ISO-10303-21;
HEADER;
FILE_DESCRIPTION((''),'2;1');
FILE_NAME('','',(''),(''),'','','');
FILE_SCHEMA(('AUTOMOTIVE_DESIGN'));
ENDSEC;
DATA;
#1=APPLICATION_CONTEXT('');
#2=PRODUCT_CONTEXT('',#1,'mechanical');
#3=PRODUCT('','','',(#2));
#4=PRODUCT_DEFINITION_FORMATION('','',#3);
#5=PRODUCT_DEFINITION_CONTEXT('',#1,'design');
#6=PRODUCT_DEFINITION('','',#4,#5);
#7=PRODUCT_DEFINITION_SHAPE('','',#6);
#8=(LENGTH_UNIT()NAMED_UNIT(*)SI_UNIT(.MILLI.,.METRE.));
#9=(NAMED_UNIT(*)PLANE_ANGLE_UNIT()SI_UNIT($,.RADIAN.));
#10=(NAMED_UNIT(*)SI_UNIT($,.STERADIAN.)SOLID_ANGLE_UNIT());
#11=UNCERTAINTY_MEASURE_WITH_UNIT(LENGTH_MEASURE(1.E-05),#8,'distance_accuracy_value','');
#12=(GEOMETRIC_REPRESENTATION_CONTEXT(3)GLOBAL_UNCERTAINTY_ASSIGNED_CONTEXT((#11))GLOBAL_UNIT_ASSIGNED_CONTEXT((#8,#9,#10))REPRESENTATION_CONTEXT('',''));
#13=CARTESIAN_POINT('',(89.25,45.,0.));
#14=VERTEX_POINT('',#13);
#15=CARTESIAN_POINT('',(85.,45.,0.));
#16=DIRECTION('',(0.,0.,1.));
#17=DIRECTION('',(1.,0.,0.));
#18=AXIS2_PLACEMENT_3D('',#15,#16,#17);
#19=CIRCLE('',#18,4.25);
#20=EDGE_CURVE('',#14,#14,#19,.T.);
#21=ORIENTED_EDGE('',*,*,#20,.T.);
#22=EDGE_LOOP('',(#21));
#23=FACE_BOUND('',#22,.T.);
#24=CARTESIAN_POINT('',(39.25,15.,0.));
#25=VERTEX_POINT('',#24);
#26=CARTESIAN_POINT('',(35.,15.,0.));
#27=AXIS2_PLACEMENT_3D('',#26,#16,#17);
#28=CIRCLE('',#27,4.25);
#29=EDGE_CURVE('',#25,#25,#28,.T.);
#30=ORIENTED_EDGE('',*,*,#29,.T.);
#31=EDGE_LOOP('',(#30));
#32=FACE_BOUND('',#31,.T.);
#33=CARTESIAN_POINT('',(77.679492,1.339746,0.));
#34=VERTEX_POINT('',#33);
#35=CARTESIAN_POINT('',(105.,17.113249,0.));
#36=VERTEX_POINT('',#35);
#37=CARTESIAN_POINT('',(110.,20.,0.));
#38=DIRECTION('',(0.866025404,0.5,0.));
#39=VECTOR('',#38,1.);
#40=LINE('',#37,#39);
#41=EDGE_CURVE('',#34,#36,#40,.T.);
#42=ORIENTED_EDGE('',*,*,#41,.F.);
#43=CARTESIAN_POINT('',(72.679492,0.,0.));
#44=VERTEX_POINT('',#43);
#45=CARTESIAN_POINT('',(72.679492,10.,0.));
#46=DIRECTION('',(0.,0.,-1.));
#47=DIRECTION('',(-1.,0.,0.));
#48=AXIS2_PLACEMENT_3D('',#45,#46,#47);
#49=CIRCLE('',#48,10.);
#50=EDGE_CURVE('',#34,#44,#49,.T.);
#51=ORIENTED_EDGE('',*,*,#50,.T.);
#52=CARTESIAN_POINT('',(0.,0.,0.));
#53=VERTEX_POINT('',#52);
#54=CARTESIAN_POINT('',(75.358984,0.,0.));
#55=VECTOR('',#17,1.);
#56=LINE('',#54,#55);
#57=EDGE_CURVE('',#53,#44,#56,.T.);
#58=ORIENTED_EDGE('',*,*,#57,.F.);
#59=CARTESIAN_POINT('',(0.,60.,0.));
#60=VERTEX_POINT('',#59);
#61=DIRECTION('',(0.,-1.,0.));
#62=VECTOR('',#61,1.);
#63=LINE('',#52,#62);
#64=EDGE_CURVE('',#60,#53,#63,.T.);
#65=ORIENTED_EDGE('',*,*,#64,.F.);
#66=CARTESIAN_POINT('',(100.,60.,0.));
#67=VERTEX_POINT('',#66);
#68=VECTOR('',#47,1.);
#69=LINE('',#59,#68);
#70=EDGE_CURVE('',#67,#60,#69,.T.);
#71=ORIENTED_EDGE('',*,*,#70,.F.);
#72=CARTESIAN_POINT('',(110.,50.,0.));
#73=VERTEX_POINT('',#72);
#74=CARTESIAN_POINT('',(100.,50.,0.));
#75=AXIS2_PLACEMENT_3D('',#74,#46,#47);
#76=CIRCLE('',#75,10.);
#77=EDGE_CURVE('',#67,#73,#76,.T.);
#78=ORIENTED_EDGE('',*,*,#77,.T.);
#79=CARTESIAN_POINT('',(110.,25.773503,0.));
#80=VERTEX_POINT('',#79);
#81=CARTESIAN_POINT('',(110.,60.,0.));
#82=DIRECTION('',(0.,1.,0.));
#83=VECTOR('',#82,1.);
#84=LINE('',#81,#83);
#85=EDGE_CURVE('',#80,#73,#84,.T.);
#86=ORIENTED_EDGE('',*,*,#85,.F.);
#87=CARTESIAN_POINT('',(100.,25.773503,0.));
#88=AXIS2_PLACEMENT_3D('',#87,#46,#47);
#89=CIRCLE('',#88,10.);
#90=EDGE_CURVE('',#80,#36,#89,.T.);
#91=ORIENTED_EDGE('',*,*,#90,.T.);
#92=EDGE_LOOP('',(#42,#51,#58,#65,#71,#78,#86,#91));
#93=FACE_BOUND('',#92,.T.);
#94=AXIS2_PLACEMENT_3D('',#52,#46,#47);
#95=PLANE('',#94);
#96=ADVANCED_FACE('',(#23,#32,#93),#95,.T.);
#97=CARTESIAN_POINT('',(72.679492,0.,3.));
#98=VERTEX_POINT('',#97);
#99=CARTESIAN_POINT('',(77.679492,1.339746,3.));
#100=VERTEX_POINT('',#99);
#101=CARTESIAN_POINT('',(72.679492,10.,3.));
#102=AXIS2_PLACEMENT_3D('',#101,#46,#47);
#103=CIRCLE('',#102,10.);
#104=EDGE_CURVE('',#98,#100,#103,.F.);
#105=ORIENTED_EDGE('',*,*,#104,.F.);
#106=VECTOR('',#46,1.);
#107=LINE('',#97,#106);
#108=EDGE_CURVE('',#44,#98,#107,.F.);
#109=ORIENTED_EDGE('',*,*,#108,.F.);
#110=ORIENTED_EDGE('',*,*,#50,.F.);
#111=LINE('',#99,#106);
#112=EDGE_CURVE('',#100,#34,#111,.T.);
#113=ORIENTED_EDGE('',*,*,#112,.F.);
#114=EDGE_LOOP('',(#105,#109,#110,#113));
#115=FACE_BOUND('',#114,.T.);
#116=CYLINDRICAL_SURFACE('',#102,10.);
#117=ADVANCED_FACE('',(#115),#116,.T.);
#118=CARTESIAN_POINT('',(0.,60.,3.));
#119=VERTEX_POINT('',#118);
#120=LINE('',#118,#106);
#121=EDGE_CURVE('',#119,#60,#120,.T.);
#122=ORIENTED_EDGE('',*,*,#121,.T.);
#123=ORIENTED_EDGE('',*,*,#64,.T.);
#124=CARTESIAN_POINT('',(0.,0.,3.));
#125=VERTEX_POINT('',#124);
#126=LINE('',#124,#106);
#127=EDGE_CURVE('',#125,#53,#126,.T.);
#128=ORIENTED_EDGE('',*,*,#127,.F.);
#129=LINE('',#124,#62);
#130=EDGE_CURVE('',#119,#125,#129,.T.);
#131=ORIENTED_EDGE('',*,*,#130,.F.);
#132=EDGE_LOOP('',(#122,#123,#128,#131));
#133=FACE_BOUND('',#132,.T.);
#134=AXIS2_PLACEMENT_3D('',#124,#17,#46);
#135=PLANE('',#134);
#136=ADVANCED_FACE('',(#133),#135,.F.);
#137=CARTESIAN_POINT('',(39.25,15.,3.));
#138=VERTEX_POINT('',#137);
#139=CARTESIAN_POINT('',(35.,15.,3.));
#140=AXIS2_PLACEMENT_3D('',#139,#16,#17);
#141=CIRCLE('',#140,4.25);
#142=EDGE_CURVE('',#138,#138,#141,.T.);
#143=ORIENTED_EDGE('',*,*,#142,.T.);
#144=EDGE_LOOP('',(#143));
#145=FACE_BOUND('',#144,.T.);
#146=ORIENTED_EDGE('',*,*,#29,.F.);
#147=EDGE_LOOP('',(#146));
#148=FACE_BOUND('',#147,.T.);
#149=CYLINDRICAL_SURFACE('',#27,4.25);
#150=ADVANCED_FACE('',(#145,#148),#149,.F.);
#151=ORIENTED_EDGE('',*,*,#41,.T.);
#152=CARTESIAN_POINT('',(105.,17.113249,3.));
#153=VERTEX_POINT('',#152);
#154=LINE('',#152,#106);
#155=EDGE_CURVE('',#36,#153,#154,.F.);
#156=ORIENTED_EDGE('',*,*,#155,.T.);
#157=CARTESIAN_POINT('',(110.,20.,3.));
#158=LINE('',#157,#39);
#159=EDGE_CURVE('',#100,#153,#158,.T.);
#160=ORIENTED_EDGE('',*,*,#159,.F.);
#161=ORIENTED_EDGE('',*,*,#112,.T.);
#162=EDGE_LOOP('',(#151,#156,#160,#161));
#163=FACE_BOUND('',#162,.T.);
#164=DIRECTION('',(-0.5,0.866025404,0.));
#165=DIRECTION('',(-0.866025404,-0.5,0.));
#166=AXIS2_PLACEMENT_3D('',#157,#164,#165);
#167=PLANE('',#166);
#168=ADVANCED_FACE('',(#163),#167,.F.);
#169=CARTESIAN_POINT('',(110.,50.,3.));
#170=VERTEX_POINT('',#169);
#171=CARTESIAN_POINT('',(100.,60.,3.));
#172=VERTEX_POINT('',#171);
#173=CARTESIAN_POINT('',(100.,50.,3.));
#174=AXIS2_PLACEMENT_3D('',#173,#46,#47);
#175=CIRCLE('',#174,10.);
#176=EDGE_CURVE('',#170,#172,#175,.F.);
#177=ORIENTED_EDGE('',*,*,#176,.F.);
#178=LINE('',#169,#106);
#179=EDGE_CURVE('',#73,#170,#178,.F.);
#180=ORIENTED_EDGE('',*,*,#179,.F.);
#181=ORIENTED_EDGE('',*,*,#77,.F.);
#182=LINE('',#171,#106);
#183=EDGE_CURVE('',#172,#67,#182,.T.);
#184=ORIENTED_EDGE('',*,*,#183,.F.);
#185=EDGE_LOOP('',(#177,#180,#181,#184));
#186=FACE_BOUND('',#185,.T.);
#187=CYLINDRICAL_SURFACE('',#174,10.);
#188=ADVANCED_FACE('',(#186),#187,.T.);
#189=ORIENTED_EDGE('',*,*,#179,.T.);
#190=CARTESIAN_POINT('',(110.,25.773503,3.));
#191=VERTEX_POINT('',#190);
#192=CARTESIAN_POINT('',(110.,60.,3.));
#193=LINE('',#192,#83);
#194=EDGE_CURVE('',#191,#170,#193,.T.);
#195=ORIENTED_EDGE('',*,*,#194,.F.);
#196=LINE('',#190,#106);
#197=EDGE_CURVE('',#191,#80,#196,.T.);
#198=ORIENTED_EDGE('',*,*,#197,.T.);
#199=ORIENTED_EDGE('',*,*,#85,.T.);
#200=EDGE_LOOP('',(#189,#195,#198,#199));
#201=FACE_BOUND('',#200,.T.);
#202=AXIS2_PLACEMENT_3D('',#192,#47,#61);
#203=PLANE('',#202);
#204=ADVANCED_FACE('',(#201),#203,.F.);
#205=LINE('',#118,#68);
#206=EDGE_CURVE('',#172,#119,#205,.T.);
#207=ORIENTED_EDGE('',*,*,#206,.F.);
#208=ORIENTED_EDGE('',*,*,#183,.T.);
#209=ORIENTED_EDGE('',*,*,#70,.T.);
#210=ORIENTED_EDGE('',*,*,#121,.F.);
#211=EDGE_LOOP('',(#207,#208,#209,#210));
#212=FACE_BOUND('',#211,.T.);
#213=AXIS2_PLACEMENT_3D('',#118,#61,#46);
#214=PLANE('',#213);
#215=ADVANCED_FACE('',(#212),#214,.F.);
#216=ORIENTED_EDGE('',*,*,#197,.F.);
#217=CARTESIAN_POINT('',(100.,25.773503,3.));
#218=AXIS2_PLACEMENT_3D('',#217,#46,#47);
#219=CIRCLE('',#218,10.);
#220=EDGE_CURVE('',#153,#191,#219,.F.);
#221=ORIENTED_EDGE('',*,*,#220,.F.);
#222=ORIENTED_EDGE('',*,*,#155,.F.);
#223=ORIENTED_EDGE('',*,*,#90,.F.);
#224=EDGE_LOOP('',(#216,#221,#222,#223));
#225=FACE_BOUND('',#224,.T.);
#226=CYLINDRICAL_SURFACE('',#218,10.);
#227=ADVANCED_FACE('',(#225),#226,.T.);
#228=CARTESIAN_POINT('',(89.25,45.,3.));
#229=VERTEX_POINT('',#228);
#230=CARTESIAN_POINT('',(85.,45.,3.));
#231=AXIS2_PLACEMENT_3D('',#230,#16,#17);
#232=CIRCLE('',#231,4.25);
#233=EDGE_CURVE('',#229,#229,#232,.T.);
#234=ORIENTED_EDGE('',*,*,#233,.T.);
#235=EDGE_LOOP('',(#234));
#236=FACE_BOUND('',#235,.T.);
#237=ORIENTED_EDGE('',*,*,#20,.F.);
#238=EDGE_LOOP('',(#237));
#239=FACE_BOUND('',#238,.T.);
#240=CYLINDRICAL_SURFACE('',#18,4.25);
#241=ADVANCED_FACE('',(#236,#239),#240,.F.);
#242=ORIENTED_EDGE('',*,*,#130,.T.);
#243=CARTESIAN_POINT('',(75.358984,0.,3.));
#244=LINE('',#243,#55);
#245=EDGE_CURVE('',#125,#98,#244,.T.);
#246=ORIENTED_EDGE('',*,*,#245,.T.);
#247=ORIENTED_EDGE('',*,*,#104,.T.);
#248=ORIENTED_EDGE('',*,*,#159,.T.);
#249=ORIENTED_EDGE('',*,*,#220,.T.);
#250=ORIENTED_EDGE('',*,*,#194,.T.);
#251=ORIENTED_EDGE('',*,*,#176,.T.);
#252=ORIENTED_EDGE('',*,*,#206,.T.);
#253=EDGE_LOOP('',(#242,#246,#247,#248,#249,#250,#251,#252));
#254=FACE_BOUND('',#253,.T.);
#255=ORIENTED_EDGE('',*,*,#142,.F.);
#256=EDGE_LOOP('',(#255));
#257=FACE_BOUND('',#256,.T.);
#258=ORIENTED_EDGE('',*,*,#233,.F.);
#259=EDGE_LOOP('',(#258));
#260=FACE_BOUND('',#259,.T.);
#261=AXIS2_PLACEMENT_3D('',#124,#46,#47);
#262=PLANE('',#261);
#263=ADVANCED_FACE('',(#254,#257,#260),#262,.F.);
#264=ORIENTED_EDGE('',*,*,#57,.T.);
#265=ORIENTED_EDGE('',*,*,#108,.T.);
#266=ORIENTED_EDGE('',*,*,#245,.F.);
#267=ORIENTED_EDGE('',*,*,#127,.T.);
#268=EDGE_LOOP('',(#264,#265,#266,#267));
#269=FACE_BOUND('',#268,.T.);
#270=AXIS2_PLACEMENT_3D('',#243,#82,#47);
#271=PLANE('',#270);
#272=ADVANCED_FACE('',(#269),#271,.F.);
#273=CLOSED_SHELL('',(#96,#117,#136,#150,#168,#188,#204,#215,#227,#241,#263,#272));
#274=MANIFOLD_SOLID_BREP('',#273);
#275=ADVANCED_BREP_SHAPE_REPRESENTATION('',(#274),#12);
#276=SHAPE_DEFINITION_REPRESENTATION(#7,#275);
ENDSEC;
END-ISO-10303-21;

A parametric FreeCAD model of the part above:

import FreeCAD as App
import Part
import Sketcher

V = App.Vector
Q = App.Units.Quantity


def edges_at(feature, points):
    """Names of the edges that pass closest to the given points."""
    edges = feature.Shape.Edges
    near = lambda p: min(range(len(edges)), key=lambda i: edges[i].distToShape(Part.Vertex(*p))[0])
    return sorted({f"Edge{near(p) + 1}" for p in points})

doc = App.newDocument("Part")
params = doc.addObject("Spreadsheet::Sheet", "Params")
for row, (alias, value) in enumerate([
    ("sketch1_width", "110 mm"),
    ("sketch1_height", "60 mm"),
    ("sketch1_height2", "40 mm"),
    ("pad1_length", "3 mm"),
    ("fillet_radius", "10 mm"),
    ("sketch2_diameter", "8.5 mm"),
], start=1):
    params.set(f"A{row}", alias)
    params.set(f"B{row}", "=" + value)
    params.setAlias(f"B{row}", alias)

body = doc.addObject("PartDesign::Body", "Body")

# Sketch on XY plane
sketch1 = body.newObject("Sketcher::SketchObject", "Sketch")
sketch1.AttachmentSupport = (doc.getObject("XY_Plane"), [""])
sketch1.MapMode = "FlatFace"
sketch1.addGeometry([
    Part.LineSegment(V(0, 60, 0), V(0, 0, 0)),  # 0
    Part.LineSegment(V(0, 0, 0), V(75.358984, 0, 0)),  # 1
    Part.LineSegment(V(75.358984, 0, 0), V(110, 20, 0)),  # 2
    Part.LineSegment(V(110, 20, 0), V(110, 60, 0)),  # 3
    Part.LineSegment(V(110, 60, 0), V(0, 60, 0)),  # 4
], False)
sketch1.addConstraint([
    Sketcher.Constraint("Coincident", 0, 2, 1, 1),
    Sketcher.Constraint("Coincident", 1, 2, 2, 1),
    Sketcher.Constraint("Coincident", 2, 2, 3, 1),
    Sketcher.Constraint("Coincident", 3, 2, 4, 1),
    Sketcher.Constraint("Coincident", 4, 2, 0, 1),
    Sketcher.Constraint("Vertical", 0),
    Sketcher.Constraint("Horizontal", 1),
    Sketcher.Constraint("Vertical", 3),
    Sketcher.Constraint("Horizontal", 4),
    Sketcher.Constraint("Coincident", 0, 2, -1, 1),
    Sketcher.Constraint("DistanceX", 4, 2, 4, 1, Q("110 mm")),
    Sketcher.Constraint("DistanceY", 0, 2, 0, 1, Q("60 mm")),
    Sketcher.Constraint("DistanceY", 3, 1, 3, 2, Q("40 mm")),
    Sketcher.Constraint("Angle", 2, Q("30 deg")),
])
sketch1.setExpression("Constraints[10]", "Params.sketch1_width")
sketch1.setExpression("Constraints[11]", "Params.sketch1_height")
sketch1.setExpression("Constraints[12]", "Params.sketch1_height2")
pad1 = body.newObject("PartDesign::Pad", "Pad")
pad1.Profile = sketch1
pad1.setExpression("Length", "Params.pad1_length")
doc.recompute()

fillet = body.newObject("PartDesign::Fillet", "Fillet")
fillet.Base = (pad1, edges_at(pad1, [(110, 60, 1.5), (110, 20, 1.5), (75.359, 0, 1.5)]))
fillet.setExpression("Radius", "Params.fillet_radius")

# Sketch on XY plane
sketch2 = body.newObject("Sketcher::SketchObject", "Sketch001")
sketch2.AttachmentSupport = (doc.getObject("XY_Plane"), [""])
sketch2.MapMode = "FlatFace"
sketch2.AttachmentOffset = App.Placement(V(0, 0, 3), App.Rotation())
sketch2.addGeometry([
    Part.Circle(V(35, 15, 0), V(0, 0, 1), 4.25),
    Part.Circle(V(85, 45, 0), V(0, 0, 1), 4.25),
], False)
sketch2.addConstraint([
    Sketcher.Constraint("Equal", 0, 1),
    Sketcher.Constraint("Diameter", 0, Q("8.5 mm")),
    Sketcher.Constraint("DistanceX", -1, 1, 0, 3, Q("35 mm")),
    Sketcher.Constraint("DistanceY", -1, 1, 0, 3, Q("15 mm")),
    Sketcher.Constraint("DistanceX", -1, 1, 1, 3, Q("85 mm")),
    Sketcher.Constraint("DistanceY", -1, 1, 1, 3, Q("45 mm")),
])
sketch2.setExpression("Constraints[1]", "Params.sketch2_diameter")
pocket1 = body.newObject("PartDesign::Pocket", "Pocket")
pocket1.Profile = sketch2
pocket1.Type = "ThroughAll"

doc.recompute()
